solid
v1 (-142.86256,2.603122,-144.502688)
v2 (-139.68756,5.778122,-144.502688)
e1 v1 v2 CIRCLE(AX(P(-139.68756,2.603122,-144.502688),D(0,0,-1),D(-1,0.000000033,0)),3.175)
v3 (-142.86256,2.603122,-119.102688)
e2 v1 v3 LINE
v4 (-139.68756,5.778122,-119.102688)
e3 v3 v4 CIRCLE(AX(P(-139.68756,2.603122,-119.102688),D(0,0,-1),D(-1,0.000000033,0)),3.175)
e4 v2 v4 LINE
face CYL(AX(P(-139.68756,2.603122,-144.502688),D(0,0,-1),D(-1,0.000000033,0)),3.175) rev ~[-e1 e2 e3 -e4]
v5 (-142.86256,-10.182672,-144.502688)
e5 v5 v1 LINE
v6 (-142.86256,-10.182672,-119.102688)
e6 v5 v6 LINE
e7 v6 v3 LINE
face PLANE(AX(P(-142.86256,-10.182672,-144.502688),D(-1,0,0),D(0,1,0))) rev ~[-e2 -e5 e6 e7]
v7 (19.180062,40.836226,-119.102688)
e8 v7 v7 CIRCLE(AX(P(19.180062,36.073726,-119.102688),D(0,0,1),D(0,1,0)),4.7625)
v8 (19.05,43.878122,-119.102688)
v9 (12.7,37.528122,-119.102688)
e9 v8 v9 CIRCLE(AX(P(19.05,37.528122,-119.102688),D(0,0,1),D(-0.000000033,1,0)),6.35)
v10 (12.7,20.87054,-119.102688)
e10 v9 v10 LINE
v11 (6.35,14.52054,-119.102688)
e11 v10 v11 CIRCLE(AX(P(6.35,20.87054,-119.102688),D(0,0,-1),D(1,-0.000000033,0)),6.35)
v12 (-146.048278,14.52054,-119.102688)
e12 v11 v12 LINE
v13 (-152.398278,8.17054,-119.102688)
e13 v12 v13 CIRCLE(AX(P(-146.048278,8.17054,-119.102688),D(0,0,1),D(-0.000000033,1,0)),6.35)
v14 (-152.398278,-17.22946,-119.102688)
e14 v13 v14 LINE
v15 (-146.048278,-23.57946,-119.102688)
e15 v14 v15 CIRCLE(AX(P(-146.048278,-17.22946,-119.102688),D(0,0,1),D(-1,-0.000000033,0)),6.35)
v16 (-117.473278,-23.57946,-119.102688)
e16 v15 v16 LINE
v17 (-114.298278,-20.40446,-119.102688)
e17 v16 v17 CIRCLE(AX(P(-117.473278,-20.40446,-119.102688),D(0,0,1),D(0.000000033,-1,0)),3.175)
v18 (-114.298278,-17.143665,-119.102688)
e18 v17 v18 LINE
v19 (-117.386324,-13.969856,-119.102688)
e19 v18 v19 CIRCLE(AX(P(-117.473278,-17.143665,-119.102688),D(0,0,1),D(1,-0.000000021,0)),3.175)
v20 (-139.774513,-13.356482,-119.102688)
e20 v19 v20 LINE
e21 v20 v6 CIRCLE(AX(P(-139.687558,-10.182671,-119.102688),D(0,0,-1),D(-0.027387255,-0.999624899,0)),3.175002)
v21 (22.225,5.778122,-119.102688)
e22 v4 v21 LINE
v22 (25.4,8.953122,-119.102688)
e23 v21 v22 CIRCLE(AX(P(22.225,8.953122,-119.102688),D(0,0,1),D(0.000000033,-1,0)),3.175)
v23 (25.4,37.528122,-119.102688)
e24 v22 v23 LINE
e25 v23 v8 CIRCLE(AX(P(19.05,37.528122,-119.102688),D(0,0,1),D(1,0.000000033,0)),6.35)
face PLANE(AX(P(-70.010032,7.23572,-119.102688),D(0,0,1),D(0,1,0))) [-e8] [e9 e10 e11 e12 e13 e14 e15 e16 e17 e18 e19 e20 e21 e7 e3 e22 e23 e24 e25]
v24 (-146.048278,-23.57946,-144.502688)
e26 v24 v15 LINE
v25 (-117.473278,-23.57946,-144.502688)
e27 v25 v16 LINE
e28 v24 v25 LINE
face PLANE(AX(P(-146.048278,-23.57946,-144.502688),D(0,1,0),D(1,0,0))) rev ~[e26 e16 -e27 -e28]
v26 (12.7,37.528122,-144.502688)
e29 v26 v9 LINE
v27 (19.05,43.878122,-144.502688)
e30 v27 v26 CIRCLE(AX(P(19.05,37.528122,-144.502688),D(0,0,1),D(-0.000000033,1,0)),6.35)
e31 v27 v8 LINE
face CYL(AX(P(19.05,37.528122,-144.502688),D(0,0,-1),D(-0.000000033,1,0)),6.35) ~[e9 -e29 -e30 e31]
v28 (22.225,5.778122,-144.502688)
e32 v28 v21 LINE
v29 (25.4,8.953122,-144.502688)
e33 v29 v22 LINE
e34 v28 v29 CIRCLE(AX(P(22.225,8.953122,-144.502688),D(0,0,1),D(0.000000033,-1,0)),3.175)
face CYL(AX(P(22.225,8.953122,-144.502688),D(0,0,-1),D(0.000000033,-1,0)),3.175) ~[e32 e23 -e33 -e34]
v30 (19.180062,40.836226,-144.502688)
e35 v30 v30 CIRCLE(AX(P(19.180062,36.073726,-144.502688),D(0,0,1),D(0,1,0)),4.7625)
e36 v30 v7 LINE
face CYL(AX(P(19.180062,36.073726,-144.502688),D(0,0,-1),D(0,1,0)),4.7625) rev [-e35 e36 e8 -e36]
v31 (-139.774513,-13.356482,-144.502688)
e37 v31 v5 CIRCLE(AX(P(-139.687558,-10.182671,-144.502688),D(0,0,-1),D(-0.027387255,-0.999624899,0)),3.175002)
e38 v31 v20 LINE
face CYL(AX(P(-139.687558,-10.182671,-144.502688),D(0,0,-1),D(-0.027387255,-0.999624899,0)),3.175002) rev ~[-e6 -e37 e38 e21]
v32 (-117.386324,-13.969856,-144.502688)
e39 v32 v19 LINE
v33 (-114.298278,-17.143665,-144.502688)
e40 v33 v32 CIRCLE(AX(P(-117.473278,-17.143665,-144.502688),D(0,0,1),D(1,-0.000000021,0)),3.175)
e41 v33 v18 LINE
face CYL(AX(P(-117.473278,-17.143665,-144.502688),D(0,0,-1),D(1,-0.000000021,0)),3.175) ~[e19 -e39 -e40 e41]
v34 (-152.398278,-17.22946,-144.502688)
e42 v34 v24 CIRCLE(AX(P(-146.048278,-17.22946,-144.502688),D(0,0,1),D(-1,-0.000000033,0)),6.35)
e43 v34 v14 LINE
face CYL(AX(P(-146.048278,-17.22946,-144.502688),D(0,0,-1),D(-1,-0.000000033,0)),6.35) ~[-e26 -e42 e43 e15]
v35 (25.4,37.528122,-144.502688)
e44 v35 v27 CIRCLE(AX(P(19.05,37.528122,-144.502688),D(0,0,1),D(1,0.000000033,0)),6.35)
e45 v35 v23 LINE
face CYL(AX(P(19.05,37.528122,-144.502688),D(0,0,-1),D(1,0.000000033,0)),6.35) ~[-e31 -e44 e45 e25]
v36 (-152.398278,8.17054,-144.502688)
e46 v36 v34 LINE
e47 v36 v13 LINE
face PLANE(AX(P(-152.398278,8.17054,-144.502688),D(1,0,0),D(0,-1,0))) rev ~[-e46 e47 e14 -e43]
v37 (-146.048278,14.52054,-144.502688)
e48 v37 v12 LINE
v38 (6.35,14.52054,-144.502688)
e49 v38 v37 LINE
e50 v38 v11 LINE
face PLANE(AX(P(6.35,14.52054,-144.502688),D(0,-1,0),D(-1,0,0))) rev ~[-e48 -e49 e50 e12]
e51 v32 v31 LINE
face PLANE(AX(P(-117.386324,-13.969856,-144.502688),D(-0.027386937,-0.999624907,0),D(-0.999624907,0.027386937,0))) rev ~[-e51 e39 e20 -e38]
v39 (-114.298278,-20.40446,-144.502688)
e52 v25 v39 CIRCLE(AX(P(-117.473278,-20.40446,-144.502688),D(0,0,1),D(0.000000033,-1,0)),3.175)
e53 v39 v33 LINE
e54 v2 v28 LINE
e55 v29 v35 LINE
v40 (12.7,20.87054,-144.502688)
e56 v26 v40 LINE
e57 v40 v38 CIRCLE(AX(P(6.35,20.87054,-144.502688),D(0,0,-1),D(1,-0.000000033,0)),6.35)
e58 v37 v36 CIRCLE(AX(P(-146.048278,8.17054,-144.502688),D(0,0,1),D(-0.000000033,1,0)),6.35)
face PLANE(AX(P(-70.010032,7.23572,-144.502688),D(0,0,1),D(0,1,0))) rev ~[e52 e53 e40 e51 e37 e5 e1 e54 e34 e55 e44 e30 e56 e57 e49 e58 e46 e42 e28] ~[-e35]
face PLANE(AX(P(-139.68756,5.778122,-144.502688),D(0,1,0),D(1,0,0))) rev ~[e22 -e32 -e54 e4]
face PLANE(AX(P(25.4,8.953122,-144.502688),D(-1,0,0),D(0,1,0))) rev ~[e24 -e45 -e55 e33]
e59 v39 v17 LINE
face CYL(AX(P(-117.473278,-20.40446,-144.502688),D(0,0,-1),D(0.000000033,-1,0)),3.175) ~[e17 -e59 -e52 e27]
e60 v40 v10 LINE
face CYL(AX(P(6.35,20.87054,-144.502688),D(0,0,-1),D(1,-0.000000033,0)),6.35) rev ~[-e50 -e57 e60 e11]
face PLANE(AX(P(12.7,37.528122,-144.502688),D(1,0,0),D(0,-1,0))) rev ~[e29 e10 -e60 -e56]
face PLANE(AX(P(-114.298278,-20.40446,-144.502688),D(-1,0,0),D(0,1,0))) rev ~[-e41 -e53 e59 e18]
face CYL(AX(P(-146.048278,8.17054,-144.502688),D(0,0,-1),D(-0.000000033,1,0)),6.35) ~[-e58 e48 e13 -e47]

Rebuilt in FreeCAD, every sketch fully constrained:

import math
import FreeCAD as App
import Part
import Sketcher
from FreeCAD import Vector
Q = App.Units.Quantity

doc = App.newDocument("Part")
body = doc.addObject("PartDesign::Body", "Body")

# Sketch on YZ plane
sketch1 = body.newObject("Sketcher::SketchObject", "Sketch")
sketch1.AttachmentSupport = (doc.getObject("YZ_Plane"), [""])
sketch1.MapMode = "FlatFace"
sketch1.addGeometry(Part.LineSegment(Vector(-20.4, 20.6, 0), Vector(-17.1, 20.6, 0)), False)
sketch1.addGeometry(Part.ArcOfCircle(Part.Circle(Vector(-17.1, 23.8, 0), Vector(0, 0, 1), 3.2), math.radians(-90), math.radians(-2)), False)
sketch1.addGeometry(Part.LineSegment(Vector(-14, 23.7, 0), Vector(-13.4, 46.1, 0)), False)
sketch1.addGeometry(Part.ArcOfCircle(Part.Circle(Vector(-10.2, 46, 0), Vector(0, 0, 1), 3.2), math.radians(90), math.radians(178)), False)
sketch1.addGeometry(Part.LineSegment(Vector(-10.2, 49.2, 0), Vector(2.6, 49.2, 0)), False)
sketch1.addGeometry(Part.ArcOfCircle(Part.Circle(Vector(2.6, 46, 0), Vector(0, 0, 1), 3.2), math.radians(0), math.radians(90)), False)
sketch1.addGeometry(Part.LineSegment(Vector(5.8, 46, 0), Vector(5.8, -115.9, 0)), False)
sketch1.addGeometry(Part.ArcOfCircle(Part.Circle(Vector(9, -115.9, 0), Vector(0, 0, 1), 3.2), math.radians(-180), math.radians(-90)), False)
sketch1.addGeometry(Part.LineSegment(Vector(9, -119.1, 0), Vector(37.5, -119.1, 0)), False)
sketch1.addGeometry(Part.ArcOfCircle(Part.Circle(Vector(37.5, -112.8, 0), Vector(0, 0, 1), 6.4), math.radians(-90), math.radians(0)), False)
sketch1.addGeometry(Part.ArcOfCircle(Part.Circle(Vector(37.5, -112.8, 0), Vector(0, 0, 1), 6.4), math.radians(0), math.radians(90)), False)
sketch1.addGeometry(Part.LineSegment(Vector(37.5, -106.4, 0), Vector(20.9, -106.4, 0)), False)
sketch1.addGeometry(Part.ArcOfCircle(Part.Circle(Vector(20.9, -100.1, 0), Vector(0, 0, 1), 6.4), math.radians(-180), math.radians(-90)), False)
sketch1.addGeometry(Part.LineSegment(Vector(14.5, -100.1, 0), Vector(14.5, 52.3, 0)), False)
sketch1.addGeometry(Part.ArcOfCircle(Part.Circle(Vector(8.2, 52.3, 0), Vector(0, 0, 1), 6.4), math.radians(0), math.radians(90)), False)
sketch1.addGeometry(Part.LineSegment(Vector(8.2, 58.7, 0), Vector(-17.2, 58.7, 0)), False)
sketch1.addGeometry(Part.ArcOfCircle(Part.Circle(Vector(-17.2, 52.3, 0), Vector(0, 0, 1), 6.4), math.radians(90), math.radians(180)), False)
sketch1.addGeometry(Part.LineSegment(Vector(-23.6, 52.3, 0), Vector(-23.6, 23.8, 0)), False)
sketch1.addGeometry(Part.ArcOfCircle(Part.Circle(Vector(-20.4, 23.8, 0), Vector(0, 0, 1), 3.2), math.radians(-180), math.radians(-90)), False)
sketch1.addGeometry(Part.Circle(Vector(36.1, -112.9, 0), Vector(0, 0, 1), 4.8), False)
sketch1.addConstraint(Sketcher.Constraint("Tangent", 0, 2, 1, 1))
sketch1.addConstraint(Sketcher.Constraint("Tangent", 1, 2, 2, 1))
sketch1.addConstraint(Sketcher.Constraint("Tangent", 2, 2, 3, 2))
sketch1.addConstraint(Sketcher.Constraint("Tangent", 3, 1, 4, 1))
sketch1.addConstraint(Sketcher.Constraint("Tangent", 4, 2, 5, 2))
sketch1.addConstraint(Sketcher.Constraint("Tangent", 5, 1, 6, 1))
sketch1.addConstraint(Sketcher.Constraint("Tangent", 6, 2, 7, 1))
sketch1.addConstraint(Sketcher.Constraint("Tangent", 7, 2, 8, 1))
sketch1.addConstraint(Sketcher.Constraint("Tangent", 8, 2, 9, 1))
sketch1.addConstraint(Sketcher.Constraint("Tangent", 9, 2, 10, 1))
sketch1.addConstraint(Sketcher.Constraint("Tangent", 10, 2, 11, 1))
sketch1.addConstraint(Sketcher.Constraint("Tangent", 11, 2, 12, 2))
sketch1.addConstraint(Sketcher.Constraint("Tangent", 12, 1, 13, 1))
sketch1.addConstraint(Sketcher.Constraint("Tangent", 13, 2, 14, 1))
sketch1.addConstraint(Sketcher.Constraint("Tangent", 14, 2, 15, 1))
sketch1.addConstraint(Sketcher.Constraint("Tangent", 15, 2, 16, 1))
sketch1.addConstraint(Sketcher.Constraint("Tangent", 16, 2, 17, 1))
sketch1.addConstraint(Sketcher.Constraint("Tangent", 17, 2, 18, 1))
sketch1.addConstraint(Sketcher.Constraint("Tangent", 18, 2, 0, 1))
sketch1.addConstraint(Sketcher.Constraint("Horizontal", 0))
sketch1.addConstraint(Sketcher.Constraint("Horizontal", 4))
sketch1.addConstraint(Sketcher.Constraint("Vertical", 6))
sketch1.addConstraint(Sketcher.Constraint("Horizontal", 8))
sketch1.addConstraint(Sketcher.Constraint("Horizontal", 11))
sketch1.addConstraint(Sketcher.Constraint("Vertical", 13))
sketch1.addConstraint(Sketcher.Constraint("Horizontal", 15))
sketch1.addConstraint(Sketcher.Constraint("Vertical", 17))
sketch1.addConstraint(Sketcher.Constraint("Equal", 1, 3))
sketch1.addConstraint(Sketcher.Constraint("Equal", 3, 5))
sketch1.addConstraint(Sketcher.Constraint("Equal", 5, 7))
sketch1.addConstraint(Sketcher.Constraint("Equal", 9, 10))
sketch1.addConstraint(Sketcher.Constraint("Equal", 10, 12))
sketch1.addConstraint(Sketcher.Constraint("Equal", 12, 14))
sketch1.addConstraint(Sketcher.Constraint("Equal", 14, 16))
sketch1.addConstraint(Sketcher.Constraint("Equal", 7, 18))
sketch1.addConstraint(Sketcher.Constraint("Horizontal", 10, 3, 9, 2))
sketch1.addConstraint(Sketcher.Constraint("Equal", 8, 17))
sketch1.addConstraint(Sketcher.Constraint("DistanceX", 15, 2, 15, 1, Q("1 in")))
sketch1.addConstraint(Sketcher.Constraint("Radius", 9, Q("0.25 in")))
sketch1.addConstraint(Sketcher.Constraint("Diameter", 19, Q("0.375 in")))
sketch1.addConstraint(Sketcher.Constraint("Radius", 1, Q("0.125 in")))
sketch1.addConstraint(Sketcher.Constraint("DistanceX", 8, 1, 8, 2, Q("1.125 in")))
sketch1.addConstraint(Sketcher.Constraint("DistanceY", 6, 2, 6, 1, 161.91256))
sketch1.addConstraint(Sketcher.Constraint("DistanceY", 13, 1, 13, 2, 152.398278))
sketch1.addConstraint(Sketcher.Constraint("Distance", 2, 22.39659))
sketch1.addConstraint(Sketcher.Constraint("DistanceX", 0, 1, 0, 2, 3.260795))
sketch1.addConstraint(Sketcher.Constraint("DistanceX", 4, 1, 4, 2, 12.785794))
sketch1.addConstraint(Sketcher.Constraint("DistanceY", -1, 1, 1, 3, 23.77059))
sketch1.addConstraint(Sketcher.Constraint("DistanceX", 3, 3, -1, 1, 10.182671))
sketch1.addConstraint(Sketcher.Constraint("DistanceY", 19, 3, -1, 1, 112.88275))
sketch1.addConstraint(Sketcher.Constraint("DistanceX", 1, 3, 19, 3, 53.217391))
pad1 = body.newObject("PartDesign::Pad", "Pad")
pad1.Profile = sketch1
pad1.Length = Q("1 in")
body2 = doc.addObject("PartDesign::Body", "Body001")
doc.recompute()

body.Placement = App.Placement(Vector(-93.702688, 0, -144.502688), App.Rotation(Vector(0, -1, 0), 90))
boolean = body2.newObject("PartDesign::Boolean", "Boolean")
boolean.Type = "Fuse"
boolean.addObjects([body])

doc.recompute()
